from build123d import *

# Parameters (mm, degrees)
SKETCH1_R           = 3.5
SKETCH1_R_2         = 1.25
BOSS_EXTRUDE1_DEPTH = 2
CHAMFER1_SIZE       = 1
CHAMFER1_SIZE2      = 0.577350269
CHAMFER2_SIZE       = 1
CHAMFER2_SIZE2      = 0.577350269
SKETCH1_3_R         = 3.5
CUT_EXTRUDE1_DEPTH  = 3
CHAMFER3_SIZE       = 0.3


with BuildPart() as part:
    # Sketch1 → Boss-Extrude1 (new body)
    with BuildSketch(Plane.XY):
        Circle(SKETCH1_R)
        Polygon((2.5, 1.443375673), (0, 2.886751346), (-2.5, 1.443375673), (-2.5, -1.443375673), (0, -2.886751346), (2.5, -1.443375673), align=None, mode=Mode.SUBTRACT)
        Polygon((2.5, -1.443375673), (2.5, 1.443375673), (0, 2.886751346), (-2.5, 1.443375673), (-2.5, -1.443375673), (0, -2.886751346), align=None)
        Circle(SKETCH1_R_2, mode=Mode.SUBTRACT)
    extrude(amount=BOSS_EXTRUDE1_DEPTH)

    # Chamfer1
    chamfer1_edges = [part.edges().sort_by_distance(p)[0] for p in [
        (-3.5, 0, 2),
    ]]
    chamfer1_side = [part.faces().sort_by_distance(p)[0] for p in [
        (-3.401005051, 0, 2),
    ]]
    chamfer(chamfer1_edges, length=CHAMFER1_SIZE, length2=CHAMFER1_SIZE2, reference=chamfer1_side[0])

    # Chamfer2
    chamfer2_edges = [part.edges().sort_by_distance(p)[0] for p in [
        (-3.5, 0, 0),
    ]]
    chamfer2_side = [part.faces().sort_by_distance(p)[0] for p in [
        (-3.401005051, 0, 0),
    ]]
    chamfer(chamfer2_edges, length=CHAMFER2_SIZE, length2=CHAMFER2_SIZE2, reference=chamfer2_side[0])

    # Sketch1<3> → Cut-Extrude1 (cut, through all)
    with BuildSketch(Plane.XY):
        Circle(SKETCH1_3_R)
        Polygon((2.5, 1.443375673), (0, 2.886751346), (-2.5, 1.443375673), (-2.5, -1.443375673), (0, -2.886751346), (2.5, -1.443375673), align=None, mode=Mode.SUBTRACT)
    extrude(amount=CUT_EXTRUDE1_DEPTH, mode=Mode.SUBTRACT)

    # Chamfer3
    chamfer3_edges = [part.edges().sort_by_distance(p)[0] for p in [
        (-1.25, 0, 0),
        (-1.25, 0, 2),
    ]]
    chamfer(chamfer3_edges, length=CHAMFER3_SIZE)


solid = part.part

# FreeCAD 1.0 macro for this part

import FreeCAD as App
import Part
import Sketcher
Q = App.Units.Quantity


def edges_at(feature, points):
    """Names of the edges that pass closest to the given points."""
    edges = feature.Shape.Edges
    near = lambda p: min(range(len(edges)), key=lambda i: edges[i].distToShape(Part.Vertex(*p))[0])
    return sorted({f"Edge{near(p) + 1}" for p in points})


def add_polygon(sketch, points):
    """Adds a closed chain of lines whose ends are joined by coincident constraints."""
    first, n = sketch.GeometryCount, len(points)
    for a, b in zip(points, points[1:] + points[:1]):
        sketch.addGeometry(Part.LineSegment(App.Vector(*a, 0), App.Vector(*b, 0)), False)
    for i in range(n):
        sketch.addConstraint(Sketcher.Constraint("Coincident", first + i, 2, first + (i + 1) % n, 1))

doc = App.newDocument("Part")
params = doc.addObject("Spreadsheet::Sheet", "Params")
for row, (alias, value) in enumerate([
    ("sketch1_diameter", "7 mm"),
    ("sketch1_diameter2", "2.5 mm"),
    ("pad1_length", "2 mm"),
    ("chamfer_size", "1 mm"),
    ("chamfer_size2", "0.57735 mm"),
    ("chamfer2_size", "1 mm"),
    ("chamfer2_size2", "0.57735 mm"),
    ("sketch2_diameter", "7 mm"),
    ("chamfer3_size", "0.3 mm"),
], start=1):
    params.set(f"A{row}", alias)
    params.set(f"B{row}", "=" + value)
    params.setAlias(f"B{row}", alias)

body = doc.addObject("PartDesign::Body", "Body")

# Sketch on XY plane
sketch1 = body.newObject("Sketcher::SketchObject", "Sketch")
sketch1.AttachmentSupport = (doc.getObject("XY_Plane"), [""])
sketch1.MapMode = "FlatFace"
sketch1.addGeometry(Part.Circle(App.Vector(0, 0, 0), App.Vector(0, 0, 1), 3.5), False)
sketch1.addGeometry(Part.Circle(App.Vector(0, 0, 0), App.Vector(0, 0, 1), 1.2), False)
sketch1.addConstraint(Sketcher.Constraint("Coincident", 0, 3, -1, 1))
sketch1.addConstraint(Sketcher.Constraint("Coincident", 1, 3, -1, 1))
sketch1.addConstraint(Sketcher.Constraint("Diameter", 0, Q("7 mm")))
sketch1.addConstraint(Sketcher.Constraint("Diameter", 1, Q("2.5 mm")))
sketch1.setExpression("Constraints[2]", "Params.sketch1_diameter")
sketch1.setExpression("Constraints[3]", "Params.sketch1_diameter2")
pad1 = body.newObject("PartDesign::Pad", "Pad")
pad1.Profile = sketch1
pad1.setExpression("Length", "Params.pad1_length")
doc.recompute()

chamfer = body.newObject("PartDesign::Chamfer", "Chamfer")
chamfer.Base = (pad1, edges_at(pad1, [(-3.5, 0, 2)]))
chamfer.ChamferType = "Two distances"
chamfer.setExpression("Size", "Params.chamfer_size")
chamfer.setExpression("Size2", "Params.chamfer_size2")
chamfer.FlipDirection = True
doc.recompute()

chamfer2 = body.newObject("PartDesign::Chamfer", "Chamfer001")
chamfer2.Base = (chamfer, edges_at(chamfer, [(-3.5, 0, 0)]))
chamfer2.ChamferType = "Two distances"
chamfer2.setExpression("Size", "Params.chamfer2_size")
chamfer2.setExpression("Size2", "Params.chamfer2_size2")
chamfer2.FlipDirection = True

# Sketch on XY plane
sketch2 = body.newObject("Sketcher::SketchObject", "Sketch001")
sketch2.AttachmentSupport = (doc.getObject("XY_Plane"), [""])
sketch2.MapMode = "FlatFace"
sketch2.addGeometry(Part.Circle(App.Vector(0, 0, 0), App.Vector(0, 0, 1), 3.5), False)  # 0
add_polygon(sketch2, [(0, 2.9), (2.5, 1.4), (2.5, -1.4), (0, -2.9), (-2.5, -1.4), (-2.5, 1.4)])  # lines 1-6
sketch2.addConstraint(Sketcher.Constraint("Vertical", 2))
sketch2.addConstraint(Sketcher.Constraint("Vertical", 5))
sketch2.addConstraint(Sketcher.Constraint("Coincident", 0, 3, -1, 1))
sketch2.addConstraint(Sketcher.Constraint("Symmetric", 1, 2, 4, 2, -1, 1))
sketch2.addConstraint(Sketcher.Constraint("Symmetric", 3, 2, 6, 2, -1, 1))
sketch2.addConstraint(Sketcher.Constraint("PointOnObject", 3, 2, -2))
sketch2.addConstraint(Sketcher.Constraint("Parallel", 3, 6))
sketch2.addConstraint(Sketcher.Constraint("Horizontal", 2, 2, 4, 2))
sketch2.addConstraint(Sketcher.Constraint("Diameter", 0, Q("7 mm")))
sketch2.addConstraint(Sketcher.Constraint("Angle", 1, Q("-30 deg")))
sketch2.addConstraint(Sketcher.Constraint("DistanceX", 4, 2, 2, 2, Q("5 mm")))
sketch2.addConstraint(Sketcher.Constraint("DistanceY", 2, 2, 2, 1, Q("2.886751 mm")))
sketch2.setExpression("Constraints[14]", "Params.sketch2_diameter")
pocket1 = body.newObject("PartDesign::Pocket", "Pocket")
pocket1.Profile = sketch2
pocket1.Type = "ThroughAll"
pocket1.Reversed = True
doc.recompute()

chamfer3 = body.newObject("PartDesign::Chamfer", "Chamfer002")
chamfer3.Base = (pocket1, edges_at(pocket1, [(-1.25, 0, 0), (-1.25, 0, 2)]))
chamfer3.setExpression("Size", "Params.chamfer3_size")

doc.recompute()
